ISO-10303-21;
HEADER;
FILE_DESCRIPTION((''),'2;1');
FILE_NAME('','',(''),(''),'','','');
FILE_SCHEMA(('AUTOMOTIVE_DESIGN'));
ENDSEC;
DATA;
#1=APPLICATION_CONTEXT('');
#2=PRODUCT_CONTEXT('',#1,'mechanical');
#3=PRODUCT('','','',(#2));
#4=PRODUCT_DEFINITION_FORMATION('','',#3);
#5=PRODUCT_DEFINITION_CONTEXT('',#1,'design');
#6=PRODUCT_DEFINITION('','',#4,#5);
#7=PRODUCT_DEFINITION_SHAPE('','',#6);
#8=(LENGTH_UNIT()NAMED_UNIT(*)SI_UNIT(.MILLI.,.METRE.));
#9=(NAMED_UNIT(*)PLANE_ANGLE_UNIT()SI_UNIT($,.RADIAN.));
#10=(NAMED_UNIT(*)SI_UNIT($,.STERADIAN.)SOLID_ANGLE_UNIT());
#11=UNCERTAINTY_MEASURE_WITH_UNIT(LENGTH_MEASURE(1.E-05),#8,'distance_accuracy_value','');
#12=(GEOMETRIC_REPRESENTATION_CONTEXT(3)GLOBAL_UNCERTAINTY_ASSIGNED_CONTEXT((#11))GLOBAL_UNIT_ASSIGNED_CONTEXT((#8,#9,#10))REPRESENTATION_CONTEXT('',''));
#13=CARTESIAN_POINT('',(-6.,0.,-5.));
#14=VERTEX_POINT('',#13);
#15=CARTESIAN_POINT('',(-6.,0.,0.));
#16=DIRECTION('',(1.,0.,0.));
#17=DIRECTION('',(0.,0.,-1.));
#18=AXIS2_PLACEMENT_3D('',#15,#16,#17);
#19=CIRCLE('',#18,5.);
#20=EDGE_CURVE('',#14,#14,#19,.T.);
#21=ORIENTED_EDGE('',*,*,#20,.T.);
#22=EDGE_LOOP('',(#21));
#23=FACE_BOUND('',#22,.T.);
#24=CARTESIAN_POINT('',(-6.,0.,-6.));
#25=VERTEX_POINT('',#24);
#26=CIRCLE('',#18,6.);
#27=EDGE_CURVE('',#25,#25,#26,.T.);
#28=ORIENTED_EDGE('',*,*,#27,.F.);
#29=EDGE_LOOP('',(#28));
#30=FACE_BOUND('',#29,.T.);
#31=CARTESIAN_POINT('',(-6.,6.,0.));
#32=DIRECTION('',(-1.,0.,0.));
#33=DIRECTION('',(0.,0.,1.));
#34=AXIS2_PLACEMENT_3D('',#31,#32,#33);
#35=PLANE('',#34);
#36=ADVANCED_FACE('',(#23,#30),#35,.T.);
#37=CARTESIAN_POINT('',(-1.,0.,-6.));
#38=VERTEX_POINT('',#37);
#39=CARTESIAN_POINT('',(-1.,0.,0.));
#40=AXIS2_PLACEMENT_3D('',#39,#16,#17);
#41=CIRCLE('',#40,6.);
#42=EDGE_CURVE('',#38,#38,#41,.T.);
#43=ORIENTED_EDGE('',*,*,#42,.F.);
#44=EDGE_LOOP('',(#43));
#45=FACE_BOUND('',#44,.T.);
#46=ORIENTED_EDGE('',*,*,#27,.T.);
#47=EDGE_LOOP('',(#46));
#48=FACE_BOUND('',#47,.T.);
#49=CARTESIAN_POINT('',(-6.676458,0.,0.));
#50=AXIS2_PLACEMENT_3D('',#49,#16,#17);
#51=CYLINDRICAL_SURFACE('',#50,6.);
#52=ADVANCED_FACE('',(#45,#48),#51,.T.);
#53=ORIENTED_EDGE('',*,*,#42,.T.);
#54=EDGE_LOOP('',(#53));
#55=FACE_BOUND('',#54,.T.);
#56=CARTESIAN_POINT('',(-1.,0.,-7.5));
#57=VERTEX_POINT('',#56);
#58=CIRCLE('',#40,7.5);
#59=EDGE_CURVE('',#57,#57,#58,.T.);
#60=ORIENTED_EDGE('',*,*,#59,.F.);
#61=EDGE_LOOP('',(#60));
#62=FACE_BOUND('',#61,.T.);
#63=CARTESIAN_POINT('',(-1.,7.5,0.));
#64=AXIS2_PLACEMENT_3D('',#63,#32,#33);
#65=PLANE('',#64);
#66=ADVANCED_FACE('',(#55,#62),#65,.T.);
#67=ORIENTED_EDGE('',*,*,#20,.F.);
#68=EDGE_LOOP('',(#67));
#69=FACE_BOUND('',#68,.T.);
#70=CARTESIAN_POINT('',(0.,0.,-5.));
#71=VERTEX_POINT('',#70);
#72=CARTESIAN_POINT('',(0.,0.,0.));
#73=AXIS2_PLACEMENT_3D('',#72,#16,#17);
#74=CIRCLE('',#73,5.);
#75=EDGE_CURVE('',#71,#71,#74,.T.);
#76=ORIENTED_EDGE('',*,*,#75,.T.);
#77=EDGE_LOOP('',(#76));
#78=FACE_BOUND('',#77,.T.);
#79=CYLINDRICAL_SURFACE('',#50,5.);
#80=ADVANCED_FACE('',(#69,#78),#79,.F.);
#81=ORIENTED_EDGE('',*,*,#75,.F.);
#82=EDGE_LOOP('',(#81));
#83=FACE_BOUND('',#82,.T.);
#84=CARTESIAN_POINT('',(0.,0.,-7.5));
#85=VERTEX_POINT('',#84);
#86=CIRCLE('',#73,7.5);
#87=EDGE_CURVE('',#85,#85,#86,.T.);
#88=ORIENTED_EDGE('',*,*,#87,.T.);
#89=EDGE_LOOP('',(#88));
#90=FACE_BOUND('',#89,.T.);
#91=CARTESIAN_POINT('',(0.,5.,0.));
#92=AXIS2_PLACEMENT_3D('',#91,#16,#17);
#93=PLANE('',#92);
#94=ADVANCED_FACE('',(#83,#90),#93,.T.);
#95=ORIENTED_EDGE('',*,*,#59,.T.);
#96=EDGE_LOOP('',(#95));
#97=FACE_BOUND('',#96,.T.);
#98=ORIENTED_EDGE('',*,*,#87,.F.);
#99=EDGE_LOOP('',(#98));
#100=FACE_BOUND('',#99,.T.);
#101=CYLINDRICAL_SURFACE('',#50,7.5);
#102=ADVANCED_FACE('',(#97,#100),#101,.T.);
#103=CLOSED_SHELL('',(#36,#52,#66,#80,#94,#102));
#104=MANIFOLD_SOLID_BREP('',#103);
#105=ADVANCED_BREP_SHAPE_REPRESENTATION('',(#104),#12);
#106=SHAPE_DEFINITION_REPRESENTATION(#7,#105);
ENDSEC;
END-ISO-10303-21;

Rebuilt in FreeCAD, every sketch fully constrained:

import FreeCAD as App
import Part
import Sketcher

V = App.Vector
Q = App.Units.Quantity

doc = App.newDocument("Part")
body = doc.addObject("PartDesign::Body", "Body")

sketch1 = body.newObject("Sketcher::SketchObject", "Sketch")
sketch1.AttachmentSupport = (doc.getObject("XY_Plane"), [""])
sketch1.MapMode = "FlatFace"
sketch1.addGeometry([
    Part.LineSegment(V(-6, 5, 0), V(0, 5, 0)),
    Part.LineSegment(V(0, 5, 0), V(0, 7.5, 0)),
    Part.LineSegment(V(0, 7.5, 0), V(-1, 7.5, 0)),
    Part.LineSegment(V(-1, 7.5, 0), V(-1, 6, 0)),
    Part.LineSegment(V(-1, 6, 0), V(-6, 6, 0)),
    Part.LineSegment(V(-6, 6, 0), V(-6, 5, 0)),
], False)
sketch1.addConstraint([
    Sketcher.Constraint("Coincident", 0, 2, 1, 1),
    Sketcher.Constraint("Coincident", 1, 2, 2, 1),
    Sketcher.Constraint("Coincident", 2, 2, 3, 1),
    Sketcher.Constraint("Coincident", 3, 2, 4, 1),
    Sketcher.Constraint("Coincident", 4, 2, 5, 1),
    Sketcher.Constraint("Coincident", 5, 2, 0, 1),
    Sketcher.Constraint("Horizontal", 0),
    Sketcher.Constraint("Vertical", 1),
    Sketcher.Constraint("Horizontal", 2),
    Sketcher.Constraint("Vertical", 3),
    Sketcher.Constraint("Horizontal", 4),
    Sketcher.Constraint("Vertical", 5),
    Sketcher.Constraint("PointOnObject", 0, 2, -2),
    Sketcher.Constraint("Equal", 2, 5),
    Sketcher.Constraint("DistanceX", 0, 1, 0, 2, Q("6 mm")),
    Sketcher.Constraint("DistanceX", 2, 2, 2, 1, Q("1 mm")),
    Sketcher.Constraint("DistanceY", 1, 1, 1, 2, Q("2.5 mm")),
    Sketcher.Constraint("DistanceY", -1, 1, 0, 2, Q("5 mm")),
])
revolution = body.newObject("PartDesign::Revolution", "Revolution")
revolution.Profile = sketch1
revolution.ReferenceAxis = (sketch1, ["H_Axis"])
revolution.Angle = 360

doc.recompute()
